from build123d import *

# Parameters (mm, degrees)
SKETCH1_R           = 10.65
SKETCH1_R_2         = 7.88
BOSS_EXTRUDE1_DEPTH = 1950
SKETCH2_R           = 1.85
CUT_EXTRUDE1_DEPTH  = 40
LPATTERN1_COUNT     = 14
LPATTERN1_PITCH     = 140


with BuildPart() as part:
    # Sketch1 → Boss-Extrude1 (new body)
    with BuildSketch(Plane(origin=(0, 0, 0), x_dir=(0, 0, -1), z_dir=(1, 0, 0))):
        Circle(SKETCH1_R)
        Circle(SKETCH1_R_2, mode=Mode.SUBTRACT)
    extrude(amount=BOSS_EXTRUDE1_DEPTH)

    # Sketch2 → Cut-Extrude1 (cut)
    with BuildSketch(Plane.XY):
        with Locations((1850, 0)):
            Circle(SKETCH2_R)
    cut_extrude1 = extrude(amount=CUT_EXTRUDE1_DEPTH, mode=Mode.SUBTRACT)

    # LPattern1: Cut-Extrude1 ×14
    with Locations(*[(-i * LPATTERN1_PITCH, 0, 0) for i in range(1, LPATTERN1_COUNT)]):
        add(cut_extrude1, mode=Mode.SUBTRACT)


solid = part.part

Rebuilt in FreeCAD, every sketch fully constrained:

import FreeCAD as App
import Part
import Sketcher

doc = App.newDocument("Part")
body = doc.addObject("PartDesign::Body", "Body")

sketch1 = body.newObject("Sketcher::SketchObject", "Sketch")
sketch1.AttachmentSupport = (doc.getObject("YZ_Plane"), [""])
sketch1.MapMode = "FlatFace"
sketch1.addGeometry(Part.Circle(App.Vector(0, 0, 0), App.Vector(0, 0, 1), 11), False)
sketch1.addGeometry(Part.Circle(App.Vector(0, 0, 0), App.Vector(0, 0, 1), 8), False)
sketch1.addConstraint(Sketcher.Constraint("Coincident", 0, 3, -1, 1))
sketch1.addConstraint(Sketcher.Constraint("Coincident", 1, 3, -1, 1))
sketch1.addConstraint(Sketcher.Constraint("Diameter", 0, 21.3))
sketch1.addConstraint(Sketcher.Constraint("Diameter", 1, 15.76))
pad1 = body.newObject("PartDesign::Pad", "Pad")
pad1.Profile = sketch1
pad1.Length = 1950

sketch2 = body.newObject("Sketcher::SketchObject", "Sketch001")
sketch2.AttachmentSupport = (doc.getObject("XY_Plane"), [""])
sketch2.MapMode = "FlatFace"
sketch2.addGeometry(Part.Circle(App.Vector(1850, 0, 0), App.Vector(0, 0, 1), 1.9), False)
sketch2.addConstraint(Sketcher.Constraint("PointOnObject", 0, 3, -1))
sketch2.addConstraint(Sketcher.Constraint("Diameter", 0, 3.7))
sketch2.addConstraint(Sketcher.Constraint("DistanceX", -1, 1, 0, 3, 1850.0))
pocket1 = body.newObject("PartDesign::Pocket", "Pocket")
pocket1.Profile = sketch2
pocket1.Length = 40
pocket1.Reversed = True
doc.recompute()

linearpattern = body.newObject("PartDesign::LinearPattern", "LinearPattern")
linearpattern.Originals = [pocket1]
linearpattern.Direction = (doc.getObject("X_Axis"), [""])
linearpattern.Mode = "offset"
linearpattern.Offset = 140
linearpattern.Occurrences = 14
linearpattern.Reversed = True
body.Tip = linearpattern

doc.recompute()
